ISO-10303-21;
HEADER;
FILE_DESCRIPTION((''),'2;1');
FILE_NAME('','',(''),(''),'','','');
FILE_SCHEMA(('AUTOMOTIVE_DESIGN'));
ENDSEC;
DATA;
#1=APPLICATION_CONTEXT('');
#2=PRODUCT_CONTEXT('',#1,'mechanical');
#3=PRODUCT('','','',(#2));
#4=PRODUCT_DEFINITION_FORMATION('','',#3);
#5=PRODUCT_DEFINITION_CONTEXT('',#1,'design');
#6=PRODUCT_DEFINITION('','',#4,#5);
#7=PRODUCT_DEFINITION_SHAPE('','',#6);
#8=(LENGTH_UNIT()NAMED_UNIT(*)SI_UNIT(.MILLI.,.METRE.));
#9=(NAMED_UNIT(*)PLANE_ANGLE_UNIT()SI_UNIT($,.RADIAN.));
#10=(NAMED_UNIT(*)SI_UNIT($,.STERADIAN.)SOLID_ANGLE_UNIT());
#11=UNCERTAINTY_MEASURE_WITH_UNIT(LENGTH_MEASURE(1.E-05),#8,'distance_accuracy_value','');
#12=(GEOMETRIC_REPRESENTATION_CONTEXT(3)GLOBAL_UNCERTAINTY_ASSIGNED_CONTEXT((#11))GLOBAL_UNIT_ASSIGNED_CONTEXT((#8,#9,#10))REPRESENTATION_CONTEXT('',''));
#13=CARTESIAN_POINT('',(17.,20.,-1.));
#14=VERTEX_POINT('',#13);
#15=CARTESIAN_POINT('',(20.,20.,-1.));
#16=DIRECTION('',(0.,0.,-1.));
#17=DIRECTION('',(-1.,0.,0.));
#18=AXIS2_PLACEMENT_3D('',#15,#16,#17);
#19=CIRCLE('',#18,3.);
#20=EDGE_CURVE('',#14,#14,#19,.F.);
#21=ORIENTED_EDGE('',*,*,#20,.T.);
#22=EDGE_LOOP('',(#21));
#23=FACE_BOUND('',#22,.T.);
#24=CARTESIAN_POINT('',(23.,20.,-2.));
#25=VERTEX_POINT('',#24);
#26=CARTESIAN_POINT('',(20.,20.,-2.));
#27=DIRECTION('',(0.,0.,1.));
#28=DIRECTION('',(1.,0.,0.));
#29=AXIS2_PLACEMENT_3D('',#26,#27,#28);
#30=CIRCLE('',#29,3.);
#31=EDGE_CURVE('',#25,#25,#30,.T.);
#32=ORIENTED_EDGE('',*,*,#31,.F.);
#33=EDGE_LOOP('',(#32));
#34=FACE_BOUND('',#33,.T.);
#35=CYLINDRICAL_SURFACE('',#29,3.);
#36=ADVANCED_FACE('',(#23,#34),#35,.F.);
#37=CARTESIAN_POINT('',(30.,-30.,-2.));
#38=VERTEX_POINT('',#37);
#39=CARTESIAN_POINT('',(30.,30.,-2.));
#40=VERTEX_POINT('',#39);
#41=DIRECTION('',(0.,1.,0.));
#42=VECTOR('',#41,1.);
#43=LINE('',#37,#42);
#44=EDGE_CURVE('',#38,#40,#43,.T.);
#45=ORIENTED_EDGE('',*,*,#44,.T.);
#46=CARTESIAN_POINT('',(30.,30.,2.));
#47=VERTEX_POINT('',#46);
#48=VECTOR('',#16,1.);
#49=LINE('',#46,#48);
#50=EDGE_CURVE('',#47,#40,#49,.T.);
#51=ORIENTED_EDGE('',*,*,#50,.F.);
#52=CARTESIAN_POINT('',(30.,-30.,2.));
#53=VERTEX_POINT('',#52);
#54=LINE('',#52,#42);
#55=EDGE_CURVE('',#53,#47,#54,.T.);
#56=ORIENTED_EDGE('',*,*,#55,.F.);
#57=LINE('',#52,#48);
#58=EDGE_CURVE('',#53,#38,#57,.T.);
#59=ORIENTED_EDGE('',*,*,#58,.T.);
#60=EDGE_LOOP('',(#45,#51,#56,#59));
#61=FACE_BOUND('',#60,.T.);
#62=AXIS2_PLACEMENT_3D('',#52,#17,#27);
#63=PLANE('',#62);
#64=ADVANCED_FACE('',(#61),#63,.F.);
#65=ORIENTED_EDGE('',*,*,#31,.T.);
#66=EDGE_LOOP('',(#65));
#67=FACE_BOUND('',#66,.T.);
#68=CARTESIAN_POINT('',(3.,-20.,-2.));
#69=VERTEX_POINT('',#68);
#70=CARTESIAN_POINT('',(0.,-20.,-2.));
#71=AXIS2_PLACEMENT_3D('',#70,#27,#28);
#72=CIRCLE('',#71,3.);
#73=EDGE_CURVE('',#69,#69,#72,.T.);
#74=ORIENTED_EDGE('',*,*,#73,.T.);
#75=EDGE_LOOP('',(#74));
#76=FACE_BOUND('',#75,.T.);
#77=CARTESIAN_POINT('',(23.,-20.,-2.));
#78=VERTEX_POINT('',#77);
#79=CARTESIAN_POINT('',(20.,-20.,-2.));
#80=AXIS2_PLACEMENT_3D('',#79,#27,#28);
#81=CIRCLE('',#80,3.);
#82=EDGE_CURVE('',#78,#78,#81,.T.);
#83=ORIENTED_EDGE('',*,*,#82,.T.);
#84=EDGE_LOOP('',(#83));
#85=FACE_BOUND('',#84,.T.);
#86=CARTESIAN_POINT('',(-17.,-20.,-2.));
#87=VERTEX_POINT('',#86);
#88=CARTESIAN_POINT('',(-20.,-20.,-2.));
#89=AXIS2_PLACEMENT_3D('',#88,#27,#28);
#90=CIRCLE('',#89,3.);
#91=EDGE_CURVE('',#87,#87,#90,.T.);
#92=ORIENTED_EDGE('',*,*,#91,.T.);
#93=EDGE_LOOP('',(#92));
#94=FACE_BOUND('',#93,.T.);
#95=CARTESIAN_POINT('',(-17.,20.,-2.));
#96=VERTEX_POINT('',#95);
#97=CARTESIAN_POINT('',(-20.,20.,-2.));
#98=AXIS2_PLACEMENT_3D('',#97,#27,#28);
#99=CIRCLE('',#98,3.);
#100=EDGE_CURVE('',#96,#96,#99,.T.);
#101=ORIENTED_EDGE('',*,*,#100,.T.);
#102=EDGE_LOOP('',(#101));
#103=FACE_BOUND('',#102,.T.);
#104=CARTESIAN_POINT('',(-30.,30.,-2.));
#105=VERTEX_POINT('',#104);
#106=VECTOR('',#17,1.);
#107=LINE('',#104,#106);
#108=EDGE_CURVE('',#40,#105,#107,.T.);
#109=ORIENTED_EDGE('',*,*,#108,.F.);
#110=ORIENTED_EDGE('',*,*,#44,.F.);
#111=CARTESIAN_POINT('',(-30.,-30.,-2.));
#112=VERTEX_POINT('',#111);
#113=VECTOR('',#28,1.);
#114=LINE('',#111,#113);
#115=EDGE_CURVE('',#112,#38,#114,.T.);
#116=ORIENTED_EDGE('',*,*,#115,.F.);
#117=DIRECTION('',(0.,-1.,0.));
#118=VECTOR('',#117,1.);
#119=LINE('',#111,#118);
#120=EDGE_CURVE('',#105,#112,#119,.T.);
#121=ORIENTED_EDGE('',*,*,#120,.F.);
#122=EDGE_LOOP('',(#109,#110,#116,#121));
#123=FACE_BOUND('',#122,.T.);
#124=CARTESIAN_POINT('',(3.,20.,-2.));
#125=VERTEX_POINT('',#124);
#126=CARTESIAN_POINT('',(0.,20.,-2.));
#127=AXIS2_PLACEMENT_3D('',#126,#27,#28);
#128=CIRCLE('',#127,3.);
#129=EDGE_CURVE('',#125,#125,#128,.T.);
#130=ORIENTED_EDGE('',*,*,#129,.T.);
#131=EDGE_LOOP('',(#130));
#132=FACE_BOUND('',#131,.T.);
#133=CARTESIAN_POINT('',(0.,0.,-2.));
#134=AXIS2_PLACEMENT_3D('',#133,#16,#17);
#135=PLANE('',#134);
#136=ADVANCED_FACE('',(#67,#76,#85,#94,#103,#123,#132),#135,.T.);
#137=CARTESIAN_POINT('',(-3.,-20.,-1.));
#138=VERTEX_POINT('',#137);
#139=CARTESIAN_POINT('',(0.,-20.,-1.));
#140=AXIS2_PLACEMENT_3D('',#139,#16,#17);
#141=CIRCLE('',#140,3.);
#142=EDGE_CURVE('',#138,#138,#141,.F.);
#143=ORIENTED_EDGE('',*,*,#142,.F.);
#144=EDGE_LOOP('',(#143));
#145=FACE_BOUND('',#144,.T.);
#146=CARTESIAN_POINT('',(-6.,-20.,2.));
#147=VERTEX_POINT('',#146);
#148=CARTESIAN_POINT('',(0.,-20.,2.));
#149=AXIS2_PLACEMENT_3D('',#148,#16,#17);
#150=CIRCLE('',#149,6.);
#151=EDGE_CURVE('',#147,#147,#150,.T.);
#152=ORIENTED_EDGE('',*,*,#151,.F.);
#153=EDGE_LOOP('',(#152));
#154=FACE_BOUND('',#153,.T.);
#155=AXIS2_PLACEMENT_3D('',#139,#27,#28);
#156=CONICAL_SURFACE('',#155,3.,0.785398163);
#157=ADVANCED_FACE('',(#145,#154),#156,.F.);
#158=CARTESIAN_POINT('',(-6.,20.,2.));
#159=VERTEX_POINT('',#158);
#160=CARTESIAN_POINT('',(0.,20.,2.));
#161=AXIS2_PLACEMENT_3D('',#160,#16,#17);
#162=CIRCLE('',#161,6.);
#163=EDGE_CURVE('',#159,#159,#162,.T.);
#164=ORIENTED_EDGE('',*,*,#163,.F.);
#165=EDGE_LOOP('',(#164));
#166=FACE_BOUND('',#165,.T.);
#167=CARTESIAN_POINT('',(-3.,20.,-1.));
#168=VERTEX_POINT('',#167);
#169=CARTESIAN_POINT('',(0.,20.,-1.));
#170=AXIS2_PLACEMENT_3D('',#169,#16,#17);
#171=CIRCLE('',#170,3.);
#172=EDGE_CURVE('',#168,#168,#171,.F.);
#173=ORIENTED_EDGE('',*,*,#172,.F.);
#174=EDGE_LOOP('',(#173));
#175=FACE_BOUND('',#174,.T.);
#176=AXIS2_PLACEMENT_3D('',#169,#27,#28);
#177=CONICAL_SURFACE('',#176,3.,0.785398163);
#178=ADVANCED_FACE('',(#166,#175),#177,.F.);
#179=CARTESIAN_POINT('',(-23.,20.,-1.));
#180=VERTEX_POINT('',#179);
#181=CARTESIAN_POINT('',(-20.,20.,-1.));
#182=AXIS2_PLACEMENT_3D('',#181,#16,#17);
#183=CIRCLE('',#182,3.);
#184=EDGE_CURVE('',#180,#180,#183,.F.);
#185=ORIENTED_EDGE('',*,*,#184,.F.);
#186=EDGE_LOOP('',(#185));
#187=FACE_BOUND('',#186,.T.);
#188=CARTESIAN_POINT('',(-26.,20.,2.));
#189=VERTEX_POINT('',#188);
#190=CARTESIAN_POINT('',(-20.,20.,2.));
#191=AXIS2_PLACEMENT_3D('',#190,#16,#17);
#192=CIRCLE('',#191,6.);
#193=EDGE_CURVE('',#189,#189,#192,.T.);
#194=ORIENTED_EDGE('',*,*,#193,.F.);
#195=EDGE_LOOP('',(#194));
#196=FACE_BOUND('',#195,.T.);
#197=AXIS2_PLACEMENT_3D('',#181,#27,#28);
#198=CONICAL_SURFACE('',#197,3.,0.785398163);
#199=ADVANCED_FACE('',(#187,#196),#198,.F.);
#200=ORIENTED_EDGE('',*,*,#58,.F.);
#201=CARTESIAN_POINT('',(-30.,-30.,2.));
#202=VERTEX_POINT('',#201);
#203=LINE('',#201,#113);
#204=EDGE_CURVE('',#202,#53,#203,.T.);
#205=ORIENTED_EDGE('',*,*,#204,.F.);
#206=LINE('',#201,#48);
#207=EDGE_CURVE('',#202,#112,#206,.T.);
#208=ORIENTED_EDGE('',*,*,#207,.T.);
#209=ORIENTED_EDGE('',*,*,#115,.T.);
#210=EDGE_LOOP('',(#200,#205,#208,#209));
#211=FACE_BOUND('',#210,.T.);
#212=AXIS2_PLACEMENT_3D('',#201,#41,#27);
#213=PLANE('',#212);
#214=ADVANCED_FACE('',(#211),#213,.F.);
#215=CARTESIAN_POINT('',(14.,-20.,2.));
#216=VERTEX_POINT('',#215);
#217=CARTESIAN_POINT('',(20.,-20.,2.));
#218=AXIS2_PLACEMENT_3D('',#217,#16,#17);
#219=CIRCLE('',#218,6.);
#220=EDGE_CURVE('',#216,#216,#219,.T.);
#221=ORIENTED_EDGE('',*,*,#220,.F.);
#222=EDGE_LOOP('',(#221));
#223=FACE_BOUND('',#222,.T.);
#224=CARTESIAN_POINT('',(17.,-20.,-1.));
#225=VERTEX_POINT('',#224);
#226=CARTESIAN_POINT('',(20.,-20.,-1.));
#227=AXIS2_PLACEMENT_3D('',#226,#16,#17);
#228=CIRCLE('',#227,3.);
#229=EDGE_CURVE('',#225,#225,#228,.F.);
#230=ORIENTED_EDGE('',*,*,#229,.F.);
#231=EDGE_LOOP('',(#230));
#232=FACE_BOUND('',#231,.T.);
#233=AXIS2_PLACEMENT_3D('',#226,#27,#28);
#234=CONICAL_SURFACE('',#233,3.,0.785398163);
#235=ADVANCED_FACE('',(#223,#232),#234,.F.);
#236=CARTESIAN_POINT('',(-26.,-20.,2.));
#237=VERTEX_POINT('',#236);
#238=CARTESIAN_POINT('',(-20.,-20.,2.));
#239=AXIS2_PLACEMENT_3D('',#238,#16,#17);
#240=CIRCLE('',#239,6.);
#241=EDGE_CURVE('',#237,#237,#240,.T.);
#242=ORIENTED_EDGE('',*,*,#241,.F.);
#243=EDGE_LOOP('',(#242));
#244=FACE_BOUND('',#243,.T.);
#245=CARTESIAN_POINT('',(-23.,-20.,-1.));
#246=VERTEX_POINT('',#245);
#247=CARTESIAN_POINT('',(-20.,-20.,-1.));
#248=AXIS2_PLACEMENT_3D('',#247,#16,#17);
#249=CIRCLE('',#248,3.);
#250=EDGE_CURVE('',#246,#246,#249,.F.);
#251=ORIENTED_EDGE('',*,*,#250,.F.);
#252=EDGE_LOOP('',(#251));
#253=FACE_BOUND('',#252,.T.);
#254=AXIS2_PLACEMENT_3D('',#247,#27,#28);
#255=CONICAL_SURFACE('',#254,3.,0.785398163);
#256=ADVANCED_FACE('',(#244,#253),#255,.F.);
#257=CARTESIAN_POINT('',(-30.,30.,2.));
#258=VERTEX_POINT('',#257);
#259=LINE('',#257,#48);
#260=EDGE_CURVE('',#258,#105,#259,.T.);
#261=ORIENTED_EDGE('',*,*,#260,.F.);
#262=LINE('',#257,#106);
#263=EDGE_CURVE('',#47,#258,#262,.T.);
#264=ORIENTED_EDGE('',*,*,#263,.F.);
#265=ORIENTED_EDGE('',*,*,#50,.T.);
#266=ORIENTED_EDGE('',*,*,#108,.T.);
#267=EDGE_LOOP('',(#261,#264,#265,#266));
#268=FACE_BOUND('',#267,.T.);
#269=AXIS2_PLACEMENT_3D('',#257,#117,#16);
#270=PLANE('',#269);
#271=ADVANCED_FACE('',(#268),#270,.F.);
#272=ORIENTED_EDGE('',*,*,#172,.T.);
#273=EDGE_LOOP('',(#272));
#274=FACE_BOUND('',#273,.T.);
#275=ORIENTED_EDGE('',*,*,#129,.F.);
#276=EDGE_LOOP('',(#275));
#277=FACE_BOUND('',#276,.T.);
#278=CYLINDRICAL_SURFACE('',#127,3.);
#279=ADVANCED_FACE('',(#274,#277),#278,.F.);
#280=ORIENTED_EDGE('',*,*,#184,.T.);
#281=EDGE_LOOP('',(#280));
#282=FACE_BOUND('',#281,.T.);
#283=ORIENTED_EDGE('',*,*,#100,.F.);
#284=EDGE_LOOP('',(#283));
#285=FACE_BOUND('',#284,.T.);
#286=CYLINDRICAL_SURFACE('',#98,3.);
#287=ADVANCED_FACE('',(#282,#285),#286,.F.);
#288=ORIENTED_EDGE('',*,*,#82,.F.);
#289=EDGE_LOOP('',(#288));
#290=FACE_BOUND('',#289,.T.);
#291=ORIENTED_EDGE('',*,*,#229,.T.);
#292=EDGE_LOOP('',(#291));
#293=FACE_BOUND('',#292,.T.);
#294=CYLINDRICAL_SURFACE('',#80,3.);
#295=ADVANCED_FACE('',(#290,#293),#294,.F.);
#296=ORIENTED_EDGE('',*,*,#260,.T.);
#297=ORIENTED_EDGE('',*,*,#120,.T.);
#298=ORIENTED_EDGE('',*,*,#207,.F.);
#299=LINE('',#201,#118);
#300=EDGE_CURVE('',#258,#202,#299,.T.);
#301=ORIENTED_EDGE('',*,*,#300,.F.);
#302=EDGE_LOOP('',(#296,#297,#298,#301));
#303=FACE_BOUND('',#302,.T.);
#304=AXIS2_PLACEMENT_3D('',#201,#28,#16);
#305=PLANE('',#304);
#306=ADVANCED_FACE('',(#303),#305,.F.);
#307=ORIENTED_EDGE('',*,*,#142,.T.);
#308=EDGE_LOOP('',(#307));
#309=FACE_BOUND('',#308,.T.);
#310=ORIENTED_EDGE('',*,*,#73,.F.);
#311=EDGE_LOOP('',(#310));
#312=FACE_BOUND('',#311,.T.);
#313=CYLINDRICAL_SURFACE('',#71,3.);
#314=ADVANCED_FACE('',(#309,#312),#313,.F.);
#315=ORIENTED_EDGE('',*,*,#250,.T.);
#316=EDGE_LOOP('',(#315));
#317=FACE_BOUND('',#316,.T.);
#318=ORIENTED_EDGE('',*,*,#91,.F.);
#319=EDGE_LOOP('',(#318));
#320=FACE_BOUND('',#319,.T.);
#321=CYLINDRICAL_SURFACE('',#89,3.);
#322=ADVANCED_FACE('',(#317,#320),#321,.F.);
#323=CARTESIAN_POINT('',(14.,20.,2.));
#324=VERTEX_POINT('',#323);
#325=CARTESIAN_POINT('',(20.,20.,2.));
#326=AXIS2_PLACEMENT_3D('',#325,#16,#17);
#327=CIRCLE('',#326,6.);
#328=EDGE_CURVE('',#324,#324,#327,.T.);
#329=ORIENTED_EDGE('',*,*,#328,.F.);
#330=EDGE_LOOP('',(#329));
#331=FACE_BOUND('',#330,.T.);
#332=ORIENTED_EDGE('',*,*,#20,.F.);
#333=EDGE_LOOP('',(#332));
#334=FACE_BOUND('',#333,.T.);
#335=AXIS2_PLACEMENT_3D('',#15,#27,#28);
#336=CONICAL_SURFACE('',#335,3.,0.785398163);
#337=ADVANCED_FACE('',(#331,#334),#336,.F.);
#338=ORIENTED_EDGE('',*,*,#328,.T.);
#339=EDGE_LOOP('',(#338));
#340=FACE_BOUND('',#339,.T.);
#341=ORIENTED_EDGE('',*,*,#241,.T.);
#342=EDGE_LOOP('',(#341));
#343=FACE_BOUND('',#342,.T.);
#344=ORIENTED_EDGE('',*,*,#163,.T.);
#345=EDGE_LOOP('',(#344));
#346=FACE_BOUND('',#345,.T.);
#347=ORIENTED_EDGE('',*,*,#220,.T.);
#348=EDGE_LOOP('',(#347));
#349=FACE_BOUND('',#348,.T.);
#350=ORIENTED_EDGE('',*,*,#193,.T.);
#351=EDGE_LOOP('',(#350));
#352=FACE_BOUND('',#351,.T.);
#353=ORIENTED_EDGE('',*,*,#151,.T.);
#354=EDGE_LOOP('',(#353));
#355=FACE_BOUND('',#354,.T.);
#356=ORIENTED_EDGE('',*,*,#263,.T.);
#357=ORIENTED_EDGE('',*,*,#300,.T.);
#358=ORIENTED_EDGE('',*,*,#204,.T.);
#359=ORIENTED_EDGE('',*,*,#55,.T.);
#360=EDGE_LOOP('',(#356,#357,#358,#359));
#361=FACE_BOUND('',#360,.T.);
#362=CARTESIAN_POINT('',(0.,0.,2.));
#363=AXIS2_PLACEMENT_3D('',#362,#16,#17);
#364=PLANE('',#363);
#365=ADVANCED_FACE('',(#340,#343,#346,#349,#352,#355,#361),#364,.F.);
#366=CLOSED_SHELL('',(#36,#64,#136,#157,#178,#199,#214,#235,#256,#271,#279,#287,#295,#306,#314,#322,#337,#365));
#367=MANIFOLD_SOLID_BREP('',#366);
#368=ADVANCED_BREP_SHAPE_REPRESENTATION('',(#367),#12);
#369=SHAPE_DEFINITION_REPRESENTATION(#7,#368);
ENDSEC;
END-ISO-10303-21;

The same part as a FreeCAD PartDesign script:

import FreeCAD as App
import Part
import Sketcher

V = App.Vector
Q = App.Units.Quantity


def edges_at(feature, points):
    """Names of the edges that pass closest to the given points."""
    edges = feature.Shape.Edges
    near = lambda p: min(range(len(edges)), key=lambda i: edges[i].distToShape(Part.Vertex(*p))[0])
    return sorted({f"Edge{near(p) + 1}" for p in points})

doc = App.newDocument("Part")
body = doc.addObject("PartDesign::Body", "Body")

sketch1 = doc.addObject("Sketcher::SketchObject", "Sketch")
body.addObject(sketch1)
sketch1.AttachmentSupport = (doc.XY_Plane, [""])
sketch1.MapMode = "FlatFace"
sketch1.addGeometry([
    Part.LineSegment(V(-30, 30, 0), V(-30, -30, 0)),
    Part.LineSegment(V(-30, -30, 0), V(30, -30, 0)),
    Part.LineSegment(V(30, -30, 0), V(30, 30, 0)),
    Part.LineSegment(V(30, 30, 0), V(-30, 30, 0)),
], False)
sketch1.addConstraint([
    Sketcher.Constraint("Coincident", 0, 2, 1, 1),
    Sketcher.Constraint("Coincident", 1, 2, 2, 1),
    Sketcher.Constraint("Coincident", 2, 2, 3, 1),
    Sketcher.Constraint("Coincident", 3, 2, 0, 1),
    Sketcher.Constraint("Vertical", 0),
    Sketcher.Constraint("Horizontal", 1),
    Sketcher.Constraint("Vertical", 2),
    Sketcher.Constraint("Horizontal", 3),
    Sketcher.Constraint("Symmetric", 0, 2, 2, 2, -1, 1),
    Sketcher.Constraint("Equal", 3, 0),
    Sketcher.Constraint("DistanceX", 1, 1, 1, 2, Q("60 mm")),
])
pad1 = doc.addObject("PartDesign::Pad", "Pad")
body.addObject(pad1)
pad1.Profile = sketch1
pad1.Length = 4
pad1.Midplane = True

sketch2 = doc.addObject("Sketcher::SketchObject", "Sketch001")
body.addObject(sketch2)
sketch2.AttachmentSupport = (doc.XY_Plane, [""])
sketch2.MapMode = "FlatFace"
sketch2.AttachmentOffset = App.Placement(V(0, 0, 2), App.Rotation())
sketch2.addGeometry([
    Part.Circle(V(0, 20, 0), V(0, 0, 1), 3),
    Part.Circle(V(0, -20, 0), V(0, 0, 1), 3),
    Part.Circle(V(20, -20, 0), V(0, 0, 1), 3),
    Part.Circle(V(-20, -20, 0), V(0, 0, 1), 3),
    Part.Circle(V(-20, 20, 0), V(0, 0, 1), 3),
    Part.Circle(V(20, 20, 0), V(0, 0, 1), 3),
], False)
sketch2.addConstraint([
    Sketcher.Constraint("Equal", 0, 1),
    Sketcher.Constraint("Equal", 1, 2),
    Sketcher.Constraint("Equal", 2, 3),
    Sketcher.Constraint("Equal", 3, 4),
    Sketcher.Constraint("Equal", 4, 5),
    Sketcher.Constraint("Symmetric", 0, 3, 1, 3, -1, 1),
    Sketcher.Constraint("Symmetric", 2, 3, 4, 3, -1, 1),
    Sketcher.Constraint("Symmetric", 3, 3, 5, 3, -1, 1),
    Sketcher.Constraint("Symmetric", 2, 3, 3, 3, -2),
    Sketcher.Constraint("PointOnObject", 0, 3, -2),
    Sketcher.Constraint("Horizontal", 1, 3, 2, 3),
    Sketcher.Constraint("Diameter", 0, Q("6 mm")),
    Sketcher.Constraint("DistanceY", -1, 1, 0, 3, Q("20 mm")),
    Sketcher.Constraint("DistanceX", -1, 1, 2, 3, Q("20 mm")),
])
pocket1 = doc.addObject("PartDesign::Pocket", "Pocket")
body.addObject(pocket1)
pocket1.Profile = sketch2
pocket1.Type = "ThroughAll"
doc.recompute()

chamfer = doc.addObject("PartDesign::Chamfer", "Chamfer")
body.addObject(chamfer)
chamfer.Base = (pocket1, edges_at(pocket1, [
    (-3, -20, 2),
    (17, -20, 2),
    (-23, -20, 2),
    (-23, 20, 2),
    (17, 20, 2),
    (-3, 20, 2),
]))
chamfer.Size = 3

doc.recompute()
